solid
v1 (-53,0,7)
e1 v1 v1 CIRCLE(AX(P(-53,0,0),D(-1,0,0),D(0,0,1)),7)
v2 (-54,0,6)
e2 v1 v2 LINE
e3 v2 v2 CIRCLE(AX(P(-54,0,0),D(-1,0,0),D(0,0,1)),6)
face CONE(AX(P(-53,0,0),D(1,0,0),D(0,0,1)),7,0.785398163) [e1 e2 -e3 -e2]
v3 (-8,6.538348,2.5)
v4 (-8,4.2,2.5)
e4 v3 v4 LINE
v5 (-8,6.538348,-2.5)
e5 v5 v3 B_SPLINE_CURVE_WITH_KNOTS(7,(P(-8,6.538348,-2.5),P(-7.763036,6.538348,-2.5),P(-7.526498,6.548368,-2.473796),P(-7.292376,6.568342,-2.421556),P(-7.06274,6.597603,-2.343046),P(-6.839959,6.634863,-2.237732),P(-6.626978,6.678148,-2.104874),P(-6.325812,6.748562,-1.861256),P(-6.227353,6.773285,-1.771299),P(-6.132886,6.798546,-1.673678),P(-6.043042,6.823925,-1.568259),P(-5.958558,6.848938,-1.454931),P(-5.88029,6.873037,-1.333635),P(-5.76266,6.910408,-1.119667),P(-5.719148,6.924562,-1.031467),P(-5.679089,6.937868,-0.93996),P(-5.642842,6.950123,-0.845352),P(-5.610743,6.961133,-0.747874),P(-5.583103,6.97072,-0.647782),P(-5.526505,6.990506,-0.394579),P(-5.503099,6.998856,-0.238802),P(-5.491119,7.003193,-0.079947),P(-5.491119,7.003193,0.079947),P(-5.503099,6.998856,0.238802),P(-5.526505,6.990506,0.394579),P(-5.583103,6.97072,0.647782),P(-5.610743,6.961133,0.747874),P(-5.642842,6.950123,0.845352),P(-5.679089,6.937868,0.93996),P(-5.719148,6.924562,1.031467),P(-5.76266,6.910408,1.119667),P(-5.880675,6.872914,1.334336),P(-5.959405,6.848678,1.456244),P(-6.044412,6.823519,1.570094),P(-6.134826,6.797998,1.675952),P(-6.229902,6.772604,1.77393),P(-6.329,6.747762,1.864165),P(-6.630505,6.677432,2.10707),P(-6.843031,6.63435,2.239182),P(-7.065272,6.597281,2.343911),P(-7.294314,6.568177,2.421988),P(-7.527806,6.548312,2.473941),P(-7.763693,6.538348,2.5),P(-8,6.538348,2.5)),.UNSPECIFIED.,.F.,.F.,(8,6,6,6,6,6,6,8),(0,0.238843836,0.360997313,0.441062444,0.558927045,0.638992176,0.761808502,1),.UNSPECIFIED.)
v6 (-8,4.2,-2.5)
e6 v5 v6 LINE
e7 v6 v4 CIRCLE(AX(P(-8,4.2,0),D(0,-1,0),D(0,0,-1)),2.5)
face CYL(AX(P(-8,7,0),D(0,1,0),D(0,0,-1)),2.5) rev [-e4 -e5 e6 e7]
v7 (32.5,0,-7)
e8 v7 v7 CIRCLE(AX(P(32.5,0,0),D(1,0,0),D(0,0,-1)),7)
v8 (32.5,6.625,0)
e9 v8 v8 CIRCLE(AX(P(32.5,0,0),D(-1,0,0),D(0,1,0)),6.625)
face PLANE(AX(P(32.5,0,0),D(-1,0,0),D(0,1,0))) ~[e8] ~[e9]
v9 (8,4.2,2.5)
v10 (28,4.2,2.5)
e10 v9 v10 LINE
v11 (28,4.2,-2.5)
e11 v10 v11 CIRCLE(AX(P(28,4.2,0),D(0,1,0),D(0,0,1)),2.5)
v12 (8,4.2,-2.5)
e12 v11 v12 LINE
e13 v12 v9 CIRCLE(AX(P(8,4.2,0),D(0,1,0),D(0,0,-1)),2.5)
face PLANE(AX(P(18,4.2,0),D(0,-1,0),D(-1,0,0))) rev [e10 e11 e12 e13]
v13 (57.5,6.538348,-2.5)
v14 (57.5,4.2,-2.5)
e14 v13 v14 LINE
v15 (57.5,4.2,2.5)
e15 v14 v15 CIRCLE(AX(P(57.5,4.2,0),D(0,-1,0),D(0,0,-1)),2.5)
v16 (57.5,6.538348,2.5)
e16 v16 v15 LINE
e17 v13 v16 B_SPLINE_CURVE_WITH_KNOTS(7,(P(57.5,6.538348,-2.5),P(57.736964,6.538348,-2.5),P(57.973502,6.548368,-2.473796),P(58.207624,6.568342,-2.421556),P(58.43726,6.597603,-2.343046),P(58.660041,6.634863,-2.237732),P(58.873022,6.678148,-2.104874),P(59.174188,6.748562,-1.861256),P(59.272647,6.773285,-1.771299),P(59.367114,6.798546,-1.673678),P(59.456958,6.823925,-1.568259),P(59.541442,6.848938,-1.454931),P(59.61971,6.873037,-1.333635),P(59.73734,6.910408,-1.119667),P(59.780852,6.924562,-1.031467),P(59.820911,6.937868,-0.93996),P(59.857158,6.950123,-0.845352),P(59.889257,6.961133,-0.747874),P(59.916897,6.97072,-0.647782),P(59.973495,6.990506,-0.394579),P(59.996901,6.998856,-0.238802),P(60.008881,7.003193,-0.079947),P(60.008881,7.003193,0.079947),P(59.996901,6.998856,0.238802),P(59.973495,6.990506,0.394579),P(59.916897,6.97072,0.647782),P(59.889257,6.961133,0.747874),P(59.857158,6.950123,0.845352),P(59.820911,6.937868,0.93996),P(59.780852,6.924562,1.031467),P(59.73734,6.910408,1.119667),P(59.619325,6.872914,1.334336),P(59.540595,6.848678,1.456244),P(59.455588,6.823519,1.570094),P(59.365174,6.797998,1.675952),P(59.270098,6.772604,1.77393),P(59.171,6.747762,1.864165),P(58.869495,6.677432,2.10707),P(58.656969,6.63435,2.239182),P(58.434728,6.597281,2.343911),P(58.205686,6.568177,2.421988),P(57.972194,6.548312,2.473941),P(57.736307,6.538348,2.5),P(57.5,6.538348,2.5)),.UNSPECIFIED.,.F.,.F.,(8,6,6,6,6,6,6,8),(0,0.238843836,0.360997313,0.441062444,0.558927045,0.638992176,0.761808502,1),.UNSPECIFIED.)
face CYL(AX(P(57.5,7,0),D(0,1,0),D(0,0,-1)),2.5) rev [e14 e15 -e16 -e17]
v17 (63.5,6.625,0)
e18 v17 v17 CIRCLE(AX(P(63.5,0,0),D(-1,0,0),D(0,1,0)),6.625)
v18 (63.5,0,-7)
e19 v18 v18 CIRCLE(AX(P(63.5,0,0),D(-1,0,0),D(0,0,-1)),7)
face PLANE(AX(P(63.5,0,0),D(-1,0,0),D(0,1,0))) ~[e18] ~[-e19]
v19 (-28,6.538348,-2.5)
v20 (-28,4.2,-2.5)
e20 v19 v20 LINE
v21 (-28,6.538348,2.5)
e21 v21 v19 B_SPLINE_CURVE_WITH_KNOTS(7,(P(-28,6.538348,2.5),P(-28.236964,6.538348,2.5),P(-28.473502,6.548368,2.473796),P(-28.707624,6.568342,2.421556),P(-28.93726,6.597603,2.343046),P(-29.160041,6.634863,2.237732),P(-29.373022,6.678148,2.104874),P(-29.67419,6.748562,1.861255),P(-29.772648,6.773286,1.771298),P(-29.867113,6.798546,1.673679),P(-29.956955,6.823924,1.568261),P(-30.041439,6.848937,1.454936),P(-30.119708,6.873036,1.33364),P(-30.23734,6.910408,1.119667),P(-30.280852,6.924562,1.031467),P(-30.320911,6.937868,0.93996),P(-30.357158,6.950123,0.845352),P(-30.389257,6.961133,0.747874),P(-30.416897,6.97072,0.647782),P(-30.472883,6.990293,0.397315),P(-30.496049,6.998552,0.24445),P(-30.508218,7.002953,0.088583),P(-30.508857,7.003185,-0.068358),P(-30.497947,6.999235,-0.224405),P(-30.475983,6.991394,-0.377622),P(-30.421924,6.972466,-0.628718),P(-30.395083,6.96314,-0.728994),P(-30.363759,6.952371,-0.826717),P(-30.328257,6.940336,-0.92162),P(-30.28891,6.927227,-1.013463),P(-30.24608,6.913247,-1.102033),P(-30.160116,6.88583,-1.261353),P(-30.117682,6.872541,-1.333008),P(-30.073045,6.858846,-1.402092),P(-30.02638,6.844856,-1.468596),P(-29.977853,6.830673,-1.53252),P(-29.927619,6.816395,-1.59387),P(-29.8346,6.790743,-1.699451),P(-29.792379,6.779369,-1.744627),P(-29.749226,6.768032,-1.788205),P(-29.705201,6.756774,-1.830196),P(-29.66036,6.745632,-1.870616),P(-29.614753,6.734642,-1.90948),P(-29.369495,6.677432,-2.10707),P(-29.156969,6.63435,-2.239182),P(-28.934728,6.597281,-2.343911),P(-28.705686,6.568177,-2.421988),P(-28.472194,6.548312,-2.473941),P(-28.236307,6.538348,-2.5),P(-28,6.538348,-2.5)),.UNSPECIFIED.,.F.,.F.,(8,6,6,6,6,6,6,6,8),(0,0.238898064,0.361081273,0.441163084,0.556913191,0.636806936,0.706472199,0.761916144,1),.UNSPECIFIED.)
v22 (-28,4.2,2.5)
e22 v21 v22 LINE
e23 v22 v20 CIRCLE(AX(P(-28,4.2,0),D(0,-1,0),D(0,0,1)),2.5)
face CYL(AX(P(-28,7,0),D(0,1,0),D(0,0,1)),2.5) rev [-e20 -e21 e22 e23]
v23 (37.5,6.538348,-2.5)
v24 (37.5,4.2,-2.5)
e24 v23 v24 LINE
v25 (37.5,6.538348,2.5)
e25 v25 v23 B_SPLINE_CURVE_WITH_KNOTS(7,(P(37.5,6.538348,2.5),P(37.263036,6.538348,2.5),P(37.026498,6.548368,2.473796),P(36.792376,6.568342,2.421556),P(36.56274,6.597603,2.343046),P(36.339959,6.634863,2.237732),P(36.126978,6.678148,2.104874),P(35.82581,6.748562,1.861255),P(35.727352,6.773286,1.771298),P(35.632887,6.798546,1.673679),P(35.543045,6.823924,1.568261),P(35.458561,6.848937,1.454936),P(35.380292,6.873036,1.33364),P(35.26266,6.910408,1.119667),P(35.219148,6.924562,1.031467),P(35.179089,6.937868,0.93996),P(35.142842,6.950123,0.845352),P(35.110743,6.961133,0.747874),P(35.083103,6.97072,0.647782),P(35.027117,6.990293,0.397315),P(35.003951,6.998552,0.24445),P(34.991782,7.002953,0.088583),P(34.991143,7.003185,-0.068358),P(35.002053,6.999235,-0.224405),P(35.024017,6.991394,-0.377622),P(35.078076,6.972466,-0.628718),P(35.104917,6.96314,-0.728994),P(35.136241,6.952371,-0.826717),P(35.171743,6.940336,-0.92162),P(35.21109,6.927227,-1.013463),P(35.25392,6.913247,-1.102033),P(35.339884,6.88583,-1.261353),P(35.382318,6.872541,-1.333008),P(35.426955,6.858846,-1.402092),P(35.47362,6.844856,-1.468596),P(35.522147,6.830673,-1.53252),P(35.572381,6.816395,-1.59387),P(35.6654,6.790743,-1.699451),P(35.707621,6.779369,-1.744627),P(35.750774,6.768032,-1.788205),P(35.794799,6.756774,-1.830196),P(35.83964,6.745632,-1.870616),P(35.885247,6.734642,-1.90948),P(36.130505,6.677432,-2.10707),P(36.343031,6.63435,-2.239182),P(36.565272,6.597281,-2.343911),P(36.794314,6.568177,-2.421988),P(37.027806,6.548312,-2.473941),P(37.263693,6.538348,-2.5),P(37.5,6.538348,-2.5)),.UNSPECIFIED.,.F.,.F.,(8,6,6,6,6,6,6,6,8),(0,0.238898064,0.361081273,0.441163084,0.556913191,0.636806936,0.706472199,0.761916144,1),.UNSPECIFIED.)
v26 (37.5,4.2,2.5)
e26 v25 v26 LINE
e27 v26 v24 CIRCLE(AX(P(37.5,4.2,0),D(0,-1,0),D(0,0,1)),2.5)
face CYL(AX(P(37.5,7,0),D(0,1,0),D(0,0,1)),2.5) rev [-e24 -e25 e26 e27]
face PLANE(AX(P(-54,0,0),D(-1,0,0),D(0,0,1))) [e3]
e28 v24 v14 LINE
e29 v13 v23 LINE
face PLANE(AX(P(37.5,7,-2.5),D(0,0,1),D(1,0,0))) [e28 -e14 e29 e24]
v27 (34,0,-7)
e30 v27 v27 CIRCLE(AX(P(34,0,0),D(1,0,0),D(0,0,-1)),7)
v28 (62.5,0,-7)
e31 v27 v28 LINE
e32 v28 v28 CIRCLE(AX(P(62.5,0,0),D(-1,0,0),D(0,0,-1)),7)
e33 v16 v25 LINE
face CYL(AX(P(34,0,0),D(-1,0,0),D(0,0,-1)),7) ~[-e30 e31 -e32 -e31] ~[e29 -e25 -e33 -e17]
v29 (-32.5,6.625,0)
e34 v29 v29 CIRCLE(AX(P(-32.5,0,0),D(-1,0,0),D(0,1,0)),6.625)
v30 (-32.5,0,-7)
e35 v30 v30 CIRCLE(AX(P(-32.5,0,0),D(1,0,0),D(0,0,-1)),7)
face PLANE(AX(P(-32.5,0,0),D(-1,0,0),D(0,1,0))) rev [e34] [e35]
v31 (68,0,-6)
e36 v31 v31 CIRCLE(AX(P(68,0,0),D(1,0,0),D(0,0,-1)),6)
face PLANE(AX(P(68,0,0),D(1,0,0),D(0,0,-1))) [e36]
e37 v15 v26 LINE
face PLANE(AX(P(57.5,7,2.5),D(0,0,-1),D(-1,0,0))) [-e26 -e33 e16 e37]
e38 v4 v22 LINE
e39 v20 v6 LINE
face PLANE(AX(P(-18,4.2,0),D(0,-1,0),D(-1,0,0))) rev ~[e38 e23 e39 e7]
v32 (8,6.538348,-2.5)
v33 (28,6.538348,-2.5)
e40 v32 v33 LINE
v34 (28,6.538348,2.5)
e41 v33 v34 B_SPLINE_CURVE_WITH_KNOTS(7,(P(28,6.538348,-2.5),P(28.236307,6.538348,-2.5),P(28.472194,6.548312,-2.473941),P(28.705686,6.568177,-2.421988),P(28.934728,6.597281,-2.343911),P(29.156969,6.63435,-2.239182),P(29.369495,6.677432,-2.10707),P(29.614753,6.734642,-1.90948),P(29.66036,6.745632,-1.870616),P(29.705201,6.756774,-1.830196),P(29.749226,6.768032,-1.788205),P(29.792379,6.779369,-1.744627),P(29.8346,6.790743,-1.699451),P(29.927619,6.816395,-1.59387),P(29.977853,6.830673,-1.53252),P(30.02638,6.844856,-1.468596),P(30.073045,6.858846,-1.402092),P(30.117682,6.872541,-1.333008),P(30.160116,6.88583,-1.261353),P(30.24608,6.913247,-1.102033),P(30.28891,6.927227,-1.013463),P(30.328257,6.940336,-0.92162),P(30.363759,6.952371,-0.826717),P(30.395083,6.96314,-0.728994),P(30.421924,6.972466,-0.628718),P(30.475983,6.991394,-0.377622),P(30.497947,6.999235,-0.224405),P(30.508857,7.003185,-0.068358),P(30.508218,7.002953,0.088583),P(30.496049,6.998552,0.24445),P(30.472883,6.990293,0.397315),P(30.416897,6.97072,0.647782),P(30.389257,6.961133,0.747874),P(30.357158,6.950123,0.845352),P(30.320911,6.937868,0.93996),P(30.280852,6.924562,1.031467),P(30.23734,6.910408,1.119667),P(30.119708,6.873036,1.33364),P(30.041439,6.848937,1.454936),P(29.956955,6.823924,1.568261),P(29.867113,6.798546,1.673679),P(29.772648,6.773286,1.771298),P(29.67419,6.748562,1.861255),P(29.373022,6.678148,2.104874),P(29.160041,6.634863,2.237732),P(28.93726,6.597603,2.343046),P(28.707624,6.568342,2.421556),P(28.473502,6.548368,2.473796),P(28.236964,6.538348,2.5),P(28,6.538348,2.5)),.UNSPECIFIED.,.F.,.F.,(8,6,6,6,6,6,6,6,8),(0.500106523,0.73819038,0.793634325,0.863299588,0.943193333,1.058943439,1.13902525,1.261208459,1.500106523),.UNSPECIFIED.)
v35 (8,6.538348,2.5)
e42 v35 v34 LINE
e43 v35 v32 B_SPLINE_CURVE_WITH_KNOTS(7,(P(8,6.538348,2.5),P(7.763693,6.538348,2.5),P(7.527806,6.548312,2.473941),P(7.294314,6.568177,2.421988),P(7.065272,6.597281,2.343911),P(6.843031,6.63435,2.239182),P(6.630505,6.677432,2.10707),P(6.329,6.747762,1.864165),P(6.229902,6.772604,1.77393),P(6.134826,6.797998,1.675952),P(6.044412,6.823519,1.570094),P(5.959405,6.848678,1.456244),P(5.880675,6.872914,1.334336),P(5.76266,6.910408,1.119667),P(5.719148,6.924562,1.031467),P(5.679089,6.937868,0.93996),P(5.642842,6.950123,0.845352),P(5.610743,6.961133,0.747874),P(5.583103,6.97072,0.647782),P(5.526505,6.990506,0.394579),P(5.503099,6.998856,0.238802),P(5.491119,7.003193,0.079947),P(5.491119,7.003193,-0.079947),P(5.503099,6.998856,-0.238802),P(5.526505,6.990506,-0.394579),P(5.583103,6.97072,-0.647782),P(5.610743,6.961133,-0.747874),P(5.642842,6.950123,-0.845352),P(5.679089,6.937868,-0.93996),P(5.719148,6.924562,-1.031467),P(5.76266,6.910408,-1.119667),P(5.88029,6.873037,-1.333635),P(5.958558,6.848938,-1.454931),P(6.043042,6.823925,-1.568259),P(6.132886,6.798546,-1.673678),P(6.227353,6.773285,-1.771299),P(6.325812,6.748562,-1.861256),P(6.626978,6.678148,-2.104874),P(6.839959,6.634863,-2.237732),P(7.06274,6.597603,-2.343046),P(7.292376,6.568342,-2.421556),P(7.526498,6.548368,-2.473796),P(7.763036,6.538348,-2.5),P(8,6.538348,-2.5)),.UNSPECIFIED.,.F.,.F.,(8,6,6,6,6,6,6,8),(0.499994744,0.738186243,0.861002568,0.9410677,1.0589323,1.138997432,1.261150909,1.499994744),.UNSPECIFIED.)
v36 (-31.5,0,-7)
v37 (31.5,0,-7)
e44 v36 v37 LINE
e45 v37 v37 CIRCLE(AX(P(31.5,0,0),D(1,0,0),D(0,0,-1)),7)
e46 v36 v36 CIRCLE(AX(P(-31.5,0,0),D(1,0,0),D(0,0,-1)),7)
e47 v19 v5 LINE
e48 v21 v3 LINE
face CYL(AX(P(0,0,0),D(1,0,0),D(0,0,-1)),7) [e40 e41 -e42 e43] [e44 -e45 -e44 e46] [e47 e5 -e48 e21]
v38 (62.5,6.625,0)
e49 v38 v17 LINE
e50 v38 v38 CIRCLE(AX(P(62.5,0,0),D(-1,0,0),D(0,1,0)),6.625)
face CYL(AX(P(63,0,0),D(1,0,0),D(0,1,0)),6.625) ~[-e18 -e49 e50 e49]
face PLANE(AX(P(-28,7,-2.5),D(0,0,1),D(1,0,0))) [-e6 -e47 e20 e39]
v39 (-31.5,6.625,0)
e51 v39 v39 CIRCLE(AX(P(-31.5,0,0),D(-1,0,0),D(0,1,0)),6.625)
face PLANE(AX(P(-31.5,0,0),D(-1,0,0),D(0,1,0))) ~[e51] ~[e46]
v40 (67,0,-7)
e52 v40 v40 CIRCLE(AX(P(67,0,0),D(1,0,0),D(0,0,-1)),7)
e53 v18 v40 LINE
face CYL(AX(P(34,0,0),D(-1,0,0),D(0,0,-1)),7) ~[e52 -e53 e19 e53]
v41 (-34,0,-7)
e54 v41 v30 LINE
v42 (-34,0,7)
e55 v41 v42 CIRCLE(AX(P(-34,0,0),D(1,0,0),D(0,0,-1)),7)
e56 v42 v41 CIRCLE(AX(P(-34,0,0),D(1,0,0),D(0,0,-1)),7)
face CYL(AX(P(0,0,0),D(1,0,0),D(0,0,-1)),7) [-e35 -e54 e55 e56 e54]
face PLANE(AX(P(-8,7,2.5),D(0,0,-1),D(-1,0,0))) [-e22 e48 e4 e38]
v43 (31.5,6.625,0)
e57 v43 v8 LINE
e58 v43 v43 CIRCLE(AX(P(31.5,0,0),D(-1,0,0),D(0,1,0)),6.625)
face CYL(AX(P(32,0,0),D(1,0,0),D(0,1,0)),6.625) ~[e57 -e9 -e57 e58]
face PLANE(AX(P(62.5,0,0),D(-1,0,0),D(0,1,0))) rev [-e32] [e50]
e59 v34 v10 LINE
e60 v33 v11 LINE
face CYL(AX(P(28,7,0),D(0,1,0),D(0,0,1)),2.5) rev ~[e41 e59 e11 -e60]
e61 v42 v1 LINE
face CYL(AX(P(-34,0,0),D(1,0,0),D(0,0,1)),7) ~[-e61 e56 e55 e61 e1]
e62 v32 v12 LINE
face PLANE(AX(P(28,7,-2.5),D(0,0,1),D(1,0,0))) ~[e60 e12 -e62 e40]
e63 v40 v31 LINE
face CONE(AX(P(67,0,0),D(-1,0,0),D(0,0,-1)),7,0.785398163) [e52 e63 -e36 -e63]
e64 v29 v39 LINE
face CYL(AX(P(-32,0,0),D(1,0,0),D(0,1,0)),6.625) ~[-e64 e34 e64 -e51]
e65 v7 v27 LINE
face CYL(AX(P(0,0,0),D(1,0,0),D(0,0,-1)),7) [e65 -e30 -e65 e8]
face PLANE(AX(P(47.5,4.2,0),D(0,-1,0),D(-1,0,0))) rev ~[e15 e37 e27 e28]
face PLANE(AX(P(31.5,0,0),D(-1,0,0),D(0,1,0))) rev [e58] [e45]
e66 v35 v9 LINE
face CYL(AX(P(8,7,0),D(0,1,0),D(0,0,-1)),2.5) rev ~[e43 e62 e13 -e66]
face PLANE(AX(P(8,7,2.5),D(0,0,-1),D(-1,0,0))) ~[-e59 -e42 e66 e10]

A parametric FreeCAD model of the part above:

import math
import FreeCAD as App
import Part
import Sketcher


def edges_at(feature, points):
    """Names of the edges that pass closest to the given points."""
    edges = feature.Shape.Edges
    near = lambda p: min(range(len(edges)), key=lambda i: edges[i].distToShape(Part.Vertex(*p))[0])
    return sorted({f"Edge{near(p) + 1}" for p in points})


def add_polygon(sketch, points):
    """Adds a closed chain of lines whose ends are joined by coincident constraints."""
    first, n = sketch.GeometryCount, len(points)
    for a, b in zip(points, points[1:] + points[:1]):
        sketch.addGeometry(Part.LineSegment(App.Vector(*a, 0), App.Vector(*b, 0)), False)
    for i in range(n):
        sketch.addConstraint(Sketcher.Constraint("Coincident", first + i, 2, first + (i + 1) % n, 1))

doc = App.newDocument("Part")
body = doc.addObject("PartDesign::Body", "Body")

# Sketch on YZ plane
sketch1 = body.newObject("Sketcher::SketchObject", "Sketch")
sketch1.AttachmentSupport = (doc.getObject("YZ_Plane"), [""])
sketch1.MapMode = "FlatFace"
sketch1.addGeometry(Part.Circle(App.Vector(0, 0, 0), App.Vector(0, 0, 1), 7), False)
sketch1.addConstraint([
    Sketcher.Constraint("Coincident", 0, 3, -1, 1),
    Sketcher.Constraint("Diameter", 0, 14.0),
])
pad1 = body.newObject("PartDesign::Pad", "Pad")
pad1.Profile = sketch1
pad1.Length = 68
pad1.Midplane = True

# Sketch on XZ plane
sketch2 = body.newObject("Sketcher::SketchObject", "Sketch001")
sketch2.AttachmentSupport = (doc.getObject("XZ_Plane"), [""])
sketch2.MapMode = "FlatFace"
sketch2.AttachmentOffset = App.Placement(App.Vector(0, 0, -7), App.Rotation())
sketch2.addGeometry([
    Part.LineSegment(App.Vector(-8, -2.5, 0), App.Vector(-28, -2.5, 0)),
    Part.ArcOfCircle(Part.Circle(App.Vector(-28, 0, 0), App.Vector(0, 0, 1), 2.5), math.radians(90), math.radians(270)),
    Part.LineSegment(App.Vector(-28, 2.5, 0), App.Vector(-8, 2.5, 0)),
    Part.ArcOfCircle(Part.Circle(App.Vector(-8, 0, 0), App.Vector(0, 0, 1), 2.5), math.radians(-90), math.radians(90)),
], False)
sketch2.addConstraint([
    Sketcher.Constraint("Tangent", 0, 2, 1, 2),
    Sketcher.Constraint("Tangent", 1, 1, 2, 1),
    Sketcher.Constraint("Tangent", 2, 2, 3, 2),
    Sketcher.Constraint("Tangent", 3, 1, 0, 1),
    Sketcher.Constraint("Horizontal", 0),
    Sketcher.Constraint("Horizontal", 2),
    Sketcher.Constraint("PointOnObject", 1, 3, -1),
    Sketcher.Constraint("Radius", 1, 2.5),
    Sketcher.Constraint("DistanceX", 0, 2, 0, 1, 20.0),
    Sketcher.Constraint("DistanceX", 1, 3, -1, 1, 28.0),
])
pocket1 = body.newObject("PartDesign::Pocket", "Pocket")
pocket1.Profile = sketch2
pocket1.Length = 2.8
pocket1.Reversed = True
doc.recompute()

mirrored = body.newObject("PartDesign::Mirrored", "Mirrored")
mirrored.Originals = [pocket1]
mirrored.MirrorPlane = (doc.getObject("YZ_Plane"), [""])
body.Tip = mirrored

# Sketch on YZ plane
sketch3 = body.newObject("Sketcher::SketchObject", "Sketch002")
sketch3.AttachmentSupport = (doc.getObject("YZ_Plane"), [""])
sketch3.MapMode = "FlatFace"
sketch3.AttachmentOffset = App.Placement(App.Vector(0, 0, -34), App.Rotation())
sketch3.addGeometry(Part.Circle(App.Vector(0, 0, 0), App.Vector(0, 0, 1), 7), False)
sketch3.addConstraint([
    Sketcher.Constraint("Coincident", 0, 3, -1, 1),
    Sketcher.Constraint("Diameter", 0, 14.0),
])
pad2 = body.newObject("PartDesign::Pad", "Pad001")
pad2.Profile = sketch3
pad2.Length = 20
pad2.Reversed = True

# Sketch on YZ plane
sketch4 = body.newObject("Sketcher::SketchObject", "Sketch003")
sketch4.AttachmentSupport = (doc.getObject("YZ_Plane"), [""])
sketch4.MapMode = "FlatFace"
sketch4.AttachmentOffset = App.Placement(App.Vector(0, 0, 34), App.Rotation())
sketch4.addGeometry(Part.Circle(App.Vector(0, 0, 0), App.Vector(0, 0, 1), 7), False)
sketch4.addConstraint([
    Sketcher.Constraint("Coincident", 0, 3, -1, 1),
    Sketcher.Constraint("Diameter", 0, 14.0),
])
pad3 = body.newObject("PartDesign::Pad", "Pad002")
pad3.Profile = sketch4
pad3.Length = 34

# Sketch on XY plane
sketch5 = body.newObject("Sketcher::SketchObject", "Sketch004")
sketch5.AttachmentSupport = (doc.getObject("XY_Plane"), [""])
sketch5.MapMode = "FlatFace"
add_polygon(sketch5, [(62.5, 7.375), (62.5, 6.625), (63.5, 6.625), (63.5, 7.375)])  # lines 0-3
add_polygon(sketch5, [(31.5, 7.375), (31.5, 6.625), (32.5, 6.625), (32.5, 7.375)])  # lines 4-7
add_polygon(sketch5, [(-32.5, 7.375), (-32.5, 6.625), (-31.5, 6.625), (-31.5, 7.375)])  # lines 8-11
sketch5.addConstraint([
    Sketcher.Constraint("Vertical", 0),
    Sketcher.Constraint("Horizontal", 1),
    Sketcher.Constraint("Vertical", 2),
    Sketcher.Constraint("Horizontal", 3),
    Sketcher.Constraint("Vertical", 4),
    Sketcher.Constraint("Horizontal", 5),
    Sketcher.Constraint("Vertical", 6),
    Sketcher.Constraint("Horizontal", 7),
    Sketcher.Constraint("Vertical", 8),
    Sketcher.Constraint("Horizontal", 9),
    Sketcher.Constraint("Vertical", 10),
    Sketcher.Constraint("Horizontal", 11),
    Sketcher.Constraint("Symmetric", 5, 2, 8, 2, -2),
    Sketcher.Constraint("Symmetric", 7, 2, 10, 2, -2),
    Sketcher.Constraint("Horizontal", 1, 2, 4, 2),
    Sketcher.Constraint("Horizontal", 3, 2, 6, 2),
    Sketcher.Constraint("Equal", 3, 5),
    Sketcher.Constraint("DistanceX", 1, 1, 1, 2, 1.0),
    Sketcher.Constraint("DistanceX", 4, 2, 0, 2, 31.0),
    Sketcher.Constraint("DistanceX", 8, 2, 4, 2, 64.0),
    Sketcher.Constraint("DistanceY", 0, 2, 0, 1, 0.75),
    Sketcher.Constraint("DistanceY", -1, 1, 0, 2, 6.625),
])
groove = body.newObject("PartDesign::Groove", "Groove")
groove.Profile = sketch5
groove.ReferenceAxis = (sketch5, ["H_Axis"])
groove.Angle = 360
doc.recompute()

chamfer = body.newObject("PartDesign::Chamfer", "Chamfer")
chamfer.Base = (groove, edges_at(groove, [(-54, 0, -7), (68, 0, 7)]))
chamfer.Size = 1

# Sketch on XZ plane
sketch6 = body.newObject("Sketcher::SketchObject", "Sketch005")
sketch6.AttachmentSupport = (doc.getObject("XZ_Plane"), [""])
sketch6.MapMode = "FlatFace"
sketch6.AttachmentOffset = App.Placement(App.Vector(0, 0, -7), App.Rotation())
sketch6.addGeometry([
    Part.LineSegment(App.Vector(57.5, -2.5, 0), App.Vector(37.5, -2.5, 0)),
    Part.ArcOfCircle(Part.Circle(App.Vector(37.5, 0, 0), App.Vector(0, 0, 1), 2.5), math.radians(90), math.radians(270)),
    Part.LineSegment(App.Vector(37.5, 2.5, 0), App.Vector(57.5, 2.5, 0)),
    Part.ArcOfCircle(Part.Circle(App.Vector(57.5, 0, 0), App.Vector(0, 0, 1), 2.5), math.radians(-90), math.radians(90)),
], False)
sketch6.addConstraint([
    Sketcher.Constraint("Tangent", 0, 2, 1, 2),
    Sketcher.Constraint("Tangent", 1, 1, 2, 1),
    Sketcher.Constraint("Tangent", 2, 2, 3, 2),
    Sketcher.Constraint("Tangent", 3, 1, 0, 1),
    Sketcher.Constraint("Horizontal", 0),
    Sketcher.Constraint("Horizontal", 2),
    Sketcher.Constraint("PointOnObject", 1, 3, -1),
    Sketcher.Constraint("Radius", 1, 2.5),
    Sketcher.Constraint("DistanceX", 0, 2, 0, 1, 20.0),
    Sketcher.Constraint("DistanceX", -1, 1, 1, 3, 37.5),
])
pocket2 = body.newObject("PartDesign::Pocket", "Pocket001")
pocket2.Profile = sketch6
pocket2.Length = 2.8
pocket2.Reversed = True

doc.recompute()
